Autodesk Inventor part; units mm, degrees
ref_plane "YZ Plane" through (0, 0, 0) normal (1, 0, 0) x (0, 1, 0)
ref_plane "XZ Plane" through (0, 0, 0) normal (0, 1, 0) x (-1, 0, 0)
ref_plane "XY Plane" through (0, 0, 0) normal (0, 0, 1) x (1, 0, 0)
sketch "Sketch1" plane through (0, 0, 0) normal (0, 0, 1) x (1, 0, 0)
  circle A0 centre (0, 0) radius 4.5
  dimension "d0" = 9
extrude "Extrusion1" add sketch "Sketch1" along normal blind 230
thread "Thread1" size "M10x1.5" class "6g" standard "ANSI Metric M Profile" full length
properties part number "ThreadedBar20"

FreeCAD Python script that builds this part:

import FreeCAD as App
import Part
import Sketcher
from FreeCAD import Vector
Q = App.Units.Quantity

doc = App.newDocument("Part")
body = doc.addObject("PartDesign::Body", "Body")

# Sketch on XY plane
sketch1 = doc.addObject("Sketcher::SketchObject", "Sketch")
body.addObject(sketch1)
sketch1.AttachmentSupport = (doc.XY_Plane, [""])
sketch1.MapMode = "FlatFace"
sketch1.addGeometry(Part.Circle(Vector(0, 0, 0), Vector(0, 0, 1), 4.5), False)
sketch1.addConstraint(Sketcher.Constraint("Coincident", 0, 3, -1, 1))
sketch1.addConstraint(Sketcher.Constraint("Diameter", 0, Q("9 mm")))
pad1 = doc.addObject("PartDesign::Pad", "Pad")
body.addObject(pad1)
pad1.Profile = sketch1
pad1.Length = 230

doc.recompute()
